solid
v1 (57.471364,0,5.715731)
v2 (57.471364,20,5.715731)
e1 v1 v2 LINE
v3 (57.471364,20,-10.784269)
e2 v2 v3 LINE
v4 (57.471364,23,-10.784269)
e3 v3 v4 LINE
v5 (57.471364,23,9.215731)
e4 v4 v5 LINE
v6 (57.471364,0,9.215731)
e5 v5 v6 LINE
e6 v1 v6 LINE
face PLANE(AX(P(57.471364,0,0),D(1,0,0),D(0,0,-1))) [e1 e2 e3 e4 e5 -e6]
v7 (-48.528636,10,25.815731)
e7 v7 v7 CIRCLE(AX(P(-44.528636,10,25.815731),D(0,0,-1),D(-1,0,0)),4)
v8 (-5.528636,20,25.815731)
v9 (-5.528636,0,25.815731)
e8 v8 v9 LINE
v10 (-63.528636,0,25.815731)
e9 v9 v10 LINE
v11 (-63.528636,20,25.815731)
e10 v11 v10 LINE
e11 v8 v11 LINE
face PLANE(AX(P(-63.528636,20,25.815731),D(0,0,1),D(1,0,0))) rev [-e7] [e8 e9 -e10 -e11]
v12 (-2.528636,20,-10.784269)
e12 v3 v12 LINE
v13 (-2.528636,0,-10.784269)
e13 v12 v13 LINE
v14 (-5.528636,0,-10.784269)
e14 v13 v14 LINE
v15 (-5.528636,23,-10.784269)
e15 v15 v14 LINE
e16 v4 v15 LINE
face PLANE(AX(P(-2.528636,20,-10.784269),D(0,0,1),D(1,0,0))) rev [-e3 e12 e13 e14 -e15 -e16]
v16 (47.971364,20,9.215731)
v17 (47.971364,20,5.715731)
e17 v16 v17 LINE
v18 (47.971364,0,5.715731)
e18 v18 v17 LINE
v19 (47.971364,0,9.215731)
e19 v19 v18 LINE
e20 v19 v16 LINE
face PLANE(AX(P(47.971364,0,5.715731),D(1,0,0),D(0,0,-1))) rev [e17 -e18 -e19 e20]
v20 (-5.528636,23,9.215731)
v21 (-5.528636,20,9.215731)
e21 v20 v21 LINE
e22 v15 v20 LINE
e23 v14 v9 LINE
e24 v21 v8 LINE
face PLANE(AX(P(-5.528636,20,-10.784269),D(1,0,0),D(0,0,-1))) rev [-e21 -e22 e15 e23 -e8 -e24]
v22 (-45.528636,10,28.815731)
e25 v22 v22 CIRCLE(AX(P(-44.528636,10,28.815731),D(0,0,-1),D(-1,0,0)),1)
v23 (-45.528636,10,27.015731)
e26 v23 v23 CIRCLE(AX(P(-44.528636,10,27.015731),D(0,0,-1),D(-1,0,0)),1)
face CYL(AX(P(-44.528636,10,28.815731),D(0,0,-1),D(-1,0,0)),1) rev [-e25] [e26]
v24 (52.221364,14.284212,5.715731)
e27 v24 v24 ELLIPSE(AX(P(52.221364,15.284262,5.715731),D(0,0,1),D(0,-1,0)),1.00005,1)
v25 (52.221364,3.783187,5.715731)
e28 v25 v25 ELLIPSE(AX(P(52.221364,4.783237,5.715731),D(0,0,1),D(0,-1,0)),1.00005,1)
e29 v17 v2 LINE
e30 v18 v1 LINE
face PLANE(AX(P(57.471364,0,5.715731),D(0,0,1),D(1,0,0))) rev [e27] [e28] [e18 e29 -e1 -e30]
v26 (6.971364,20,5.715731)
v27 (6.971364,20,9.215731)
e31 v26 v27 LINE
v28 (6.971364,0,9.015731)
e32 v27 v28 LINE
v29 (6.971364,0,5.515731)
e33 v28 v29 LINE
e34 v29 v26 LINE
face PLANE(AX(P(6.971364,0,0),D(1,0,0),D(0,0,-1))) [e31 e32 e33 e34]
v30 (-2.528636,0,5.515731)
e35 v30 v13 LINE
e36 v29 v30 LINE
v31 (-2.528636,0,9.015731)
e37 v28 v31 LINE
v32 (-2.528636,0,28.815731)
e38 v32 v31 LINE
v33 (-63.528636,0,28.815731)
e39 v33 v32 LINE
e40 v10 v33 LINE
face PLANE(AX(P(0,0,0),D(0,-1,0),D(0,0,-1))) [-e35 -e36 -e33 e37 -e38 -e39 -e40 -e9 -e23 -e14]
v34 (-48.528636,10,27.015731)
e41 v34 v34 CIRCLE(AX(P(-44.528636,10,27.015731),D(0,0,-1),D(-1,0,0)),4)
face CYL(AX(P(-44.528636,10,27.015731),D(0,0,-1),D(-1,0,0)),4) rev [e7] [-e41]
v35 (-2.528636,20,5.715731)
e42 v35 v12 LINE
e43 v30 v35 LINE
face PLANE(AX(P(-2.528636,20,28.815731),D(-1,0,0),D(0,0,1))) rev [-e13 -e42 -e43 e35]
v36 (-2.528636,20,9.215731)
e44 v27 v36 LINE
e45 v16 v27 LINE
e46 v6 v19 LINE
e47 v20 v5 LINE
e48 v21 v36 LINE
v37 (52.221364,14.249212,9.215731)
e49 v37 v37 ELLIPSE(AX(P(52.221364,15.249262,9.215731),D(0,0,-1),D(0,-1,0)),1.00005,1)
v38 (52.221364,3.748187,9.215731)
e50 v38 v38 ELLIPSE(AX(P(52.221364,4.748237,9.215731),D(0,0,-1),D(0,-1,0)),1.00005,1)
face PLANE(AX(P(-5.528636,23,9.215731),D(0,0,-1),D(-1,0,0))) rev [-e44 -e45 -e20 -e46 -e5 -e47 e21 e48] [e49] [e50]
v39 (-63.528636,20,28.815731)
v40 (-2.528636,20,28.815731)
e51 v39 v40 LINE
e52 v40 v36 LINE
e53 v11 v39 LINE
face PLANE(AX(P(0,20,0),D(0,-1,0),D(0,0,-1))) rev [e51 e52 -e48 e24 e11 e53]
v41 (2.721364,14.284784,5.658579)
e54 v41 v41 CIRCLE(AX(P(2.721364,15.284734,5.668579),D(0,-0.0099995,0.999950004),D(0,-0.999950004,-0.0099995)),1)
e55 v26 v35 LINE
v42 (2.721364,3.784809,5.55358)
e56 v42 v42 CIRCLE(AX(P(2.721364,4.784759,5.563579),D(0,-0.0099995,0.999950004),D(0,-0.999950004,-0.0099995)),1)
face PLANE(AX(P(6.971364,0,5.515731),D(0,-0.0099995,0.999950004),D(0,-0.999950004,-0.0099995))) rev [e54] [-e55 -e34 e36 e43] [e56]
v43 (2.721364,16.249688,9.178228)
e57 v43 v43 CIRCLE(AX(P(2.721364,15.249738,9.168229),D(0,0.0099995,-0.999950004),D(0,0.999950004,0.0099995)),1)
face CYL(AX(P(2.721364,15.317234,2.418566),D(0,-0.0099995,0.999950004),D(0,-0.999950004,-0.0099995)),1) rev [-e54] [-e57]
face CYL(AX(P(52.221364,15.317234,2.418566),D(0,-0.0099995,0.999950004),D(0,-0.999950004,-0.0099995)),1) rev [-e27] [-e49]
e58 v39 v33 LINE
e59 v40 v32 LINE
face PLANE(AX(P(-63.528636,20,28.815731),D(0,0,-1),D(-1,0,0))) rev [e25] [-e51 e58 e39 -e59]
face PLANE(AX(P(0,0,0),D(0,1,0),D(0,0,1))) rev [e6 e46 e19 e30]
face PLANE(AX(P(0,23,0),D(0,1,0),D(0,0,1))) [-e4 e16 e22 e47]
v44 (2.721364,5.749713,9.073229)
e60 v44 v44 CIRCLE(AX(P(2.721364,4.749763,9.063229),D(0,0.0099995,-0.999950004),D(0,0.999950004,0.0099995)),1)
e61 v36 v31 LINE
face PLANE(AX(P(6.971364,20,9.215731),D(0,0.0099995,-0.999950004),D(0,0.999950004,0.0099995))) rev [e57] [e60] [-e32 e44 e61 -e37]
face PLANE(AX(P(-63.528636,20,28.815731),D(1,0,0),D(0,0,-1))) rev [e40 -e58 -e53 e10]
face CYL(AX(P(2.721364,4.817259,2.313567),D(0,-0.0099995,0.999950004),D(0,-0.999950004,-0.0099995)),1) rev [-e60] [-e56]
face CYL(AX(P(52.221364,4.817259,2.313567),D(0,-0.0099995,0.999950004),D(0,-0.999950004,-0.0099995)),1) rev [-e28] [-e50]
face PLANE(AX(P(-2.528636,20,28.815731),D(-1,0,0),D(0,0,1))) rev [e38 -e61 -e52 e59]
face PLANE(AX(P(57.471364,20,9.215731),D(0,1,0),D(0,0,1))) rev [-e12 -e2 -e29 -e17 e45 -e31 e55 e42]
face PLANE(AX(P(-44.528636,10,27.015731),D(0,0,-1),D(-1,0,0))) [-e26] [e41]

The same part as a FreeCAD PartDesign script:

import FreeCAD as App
import Part
import Sketcher

V = App.Vector
Q = App.Units.Quantity


def add_polygon(sketch, points):
    """Adds a closed chain of lines whose ends are joined by coincident constraints."""
    first, n = sketch.GeometryCount, len(points)
    for a, b in zip(points, points[1:] + points[:1]):
        sketch.addGeometry(Part.LineSegment(App.Vector(*a, 0), App.Vector(*b, 0)), False)
    for i in range(n):
        sketch.addConstraint(Sketcher.Constraint("Coincident", first + i, 2, first + (i + 1) % n, 1))

doc = App.newDocument("Part")
body = doc.addObject("PartDesign::Body", "Body")

# Sketch on XZ plane
sketch1 = body.newObject("Sketcher::SketchObject", "Sketch")
sketch1.AttachmentSupport = (doc.getObject("XZ_Plane"), [""])
sketch1.MapMode = "FlatFace"
add_polygon(sketch1, [(-63.5, 28.8), (-2.5, 28.8), (-2.5, -10.8), (-5.5, -10.8), (-5.5, 25.8), (-63.5, 25.8)])  # lines 0-5
sketch1.addConstraint([
    Sketcher.Constraint("Horizontal", 0),
    Sketcher.Constraint("Vertical", 1),
    Sketcher.Constraint("Horizontal", 2),
    Sketcher.Constraint("Vertical", 3),
    Sketcher.Constraint("Horizontal", 4),
    Sketcher.Constraint("Vertical", 5),
    Sketcher.Constraint("Equal", 2, 5),
    Sketcher.Constraint("DistanceX", 0, 1, 0, 2, Q("61 mm")),
    Sketcher.Constraint("DistanceX", 2, 2, 2, 1, Q("3 mm")),
    Sketcher.Constraint("DistanceY", 1, 2, 1, 1, Q("39.6 mm")),
    Sketcher.Constraint("DistanceY", -1, 1, 0, 2, Q("28.815731 mm")),
    Sketcher.Constraint("DistanceX", 0, 2, -1, 1, Q("2.528636 mm")),
])
pad1 = body.newObject("PartDesign::Pad", "Pad")
pad1.Profile = sketch1
pad1.Length = 20
pad1.Reversed = True

# Sketch on XZ plane
sketch2 = body.newObject("Sketcher::SketchObject", "Sketch001")
sketch2.AttachmentSupport = (doc.getObject("XZ_Plane"), [""])
sketch2.MapMode = "FlatFace"
sketch2.AttachmentOffset = App.Placement(V(0, 0, -20), App.Rotation())
add_polygon(sketch2, [(-5.5, -10.8), (-5.5, 9.2), (-2.5, 9.2), (-2.5, -10.8)])  # lines 0-3
sketch2.addConstraint([
    Sketcher.Constraint("Vertical", 0),
    Sketcher.Constraint("Horizontal", 1),
    Sketcher.Constraint("Vertical", 2),
    Sketcher.Constraint("Horizontal", 3),
    Sketcher.Constraint("DistanceX", 1, 1, 1, 2, Q("3 mm")),
    Sketcher.Constraint("DistanceY", 0, 1, 0, 2, Q("20 mm")),
    Sketcher.Constraint("DistanceY", -1, 1, 0, 2, Q("9.215731 mm")),
    Sketcher.Constraint("DistanceX", 0, 2, -1, 1, Q("5.528636 mm")),
])
pad2 = body.newObject("PartDesign::Pad", "Pad001")
pad2.Profile = sketch2
pad2.Length = 3
pad2.Reversed = True

# Sketch on YZ plane
sketch3 = body.newObject("Sketcher::SketchObject", "Sketch002")
sketch3.AttachmentSupport = (doc.getObject("YZ_Plane"), [""])
sketch3.MapMode = "FlatFace"
sketch3.AttachmentOffset = App.Placement(V(0, 0, -2.528636), App.Rotation())
add_polygon(sketch3, [(23, 9.2), (20, 9.2), (20, -10.8), (23, -10.8)])  # lines 0-3
sketch3.addConstraint([
    Sketcher.Constraint("Horizontal", 0),
    Sketcher.Constraint("Vertical", 1),
    Sketcher.Constraint("Horizontal", 2),
    Sketcher.Constraint("Vertical", 3),
    Sketcher.Constraint("DistanceX", 0, 2, 0, 1, Q("3 mm")),
    Sketcher.Constraint("DistanceY", 1, 2, 1, 1, Q("20 mm")),
    Sketcher.Constraint("DistanceX", -1, 1, 0, 2, Q("20 mm")),
    Sketcher.Constraint("DistanceY", -1, 1, 0, 2, Q("9.215731 mm")),
])
pad3 = body.newObject("PartDesign::Pad", "Pad002")
pad3.Profile = sketch3
pad3.Length = 60

# Sketch on YZ plane
sketch4 = body.newObject("Sketcher::SketchObject", "Sketch003")
sketch4.AttachmentSupport = (doc.getObject("YZ_Plane"), [""])
sketch4.MapMode = "FlatFace"
sketch4.AttachmentOffset = App.Placement(V(0, 0, -2.528636), App.Rotation())
add_polygon(sketch4, [(20, 9.2), (0, 9), (0, 5.5), (20, 5.7)])  # lines 0-3
sketch4.addConstraint([
    Sketcher.Constraint("Vertical", 1),
    Sketcher.Constraint("Vertical", 3),
    Sketcher.Constraint("PointOnObject", 0, 2, -2),
    Sketcher.Constraint("Parallel", 0, 2),
    Sketcher.Constraint("DistanceY", 1, 2, 1, 1, Q("3.5 mm")),
    Sketcher.Constraint("DistanceX", -1, 1, 2, 2, Q("20 mm")),
    Sketcher.Constraint("DistanceY", 1, 2, 2, 2, Q("0.2 mm")),
    Sketcher.Constraint("DistanceY", -1, 1, 0, 2, Q("9.015731 mm")),
])
pad4 = body.newObject("PartDesign::Pad", "Pad003")
pad4.Profile = sketch4
pad4.Length = 9.5

# Sketch on XZ plane
sketch5 = body.newObject("Sketcher::SketchObject", "Sketch004")
sketch5.AttachmentSupport = (doc.getObject("XZ_Plane"), [""])
sketch5.MapMode = "FlatFace"
sketch5.AttachmentOffset = App.Placement(V(0, 0, -20), App.Rotation())
add_polygon(sketch5, [(48, 9.2), (48, 5.7), (57.5, 5.7), (57.5, 9.2)])  # lines 0-3
sketch5.addConstraint([
    Sketcher.Constraint("Vertical", 0),
    Sketcher.Constraint("Horizontal", 1),
    Sketcher.Constraint("Vertical", 2),
    Sketcher.Constraint("Horizontal", 3),
    Sketcher.Constraint("DistanceX", 1, 1, 1, 2, Q("9.5 mm")),
    Sketcher.Constraint("DistanceY", 0, 2, 0, 1, Q("3.5 mm")),
    Sketcher.Constraint("DistanceY", -1, 1, 0, 2, Q("5.715731 mm")),
    Sketcher.Constraint("DistanceX", -1, 1, 0, 2, Q("47.971364 mm")),
])
pad5 = body.newObject("PartDesign::Pad", "Pad004")
pad5.Profile = sketch5
pad5.Length = 20

# Sketch on XY plane
sketch6 = body.newObject("Sketcher::SketchObject", "Sketch005")
sketch6.AttachmentSupport = (doc.getObject("XY_Plane"), [""])
sketch6.MapMode = "FlatFace"
sketch6.AttachmentOffset = App.Placement(V(0, 0, 25.815731), App.Rotation())
sketch6.addGeometry(Part.Circle(V(-44.5, 10, 0), V(0, 0, 1), 4), False)
sketch6.addConstraint([
    Sketcher.Constraint("Diameter", 0, Q("8 mm")),
    Sketcher.Constraint("DistanceY", -1, 1, 0, 3, Q("10 mm")),
    Sketcher.Constraint("DistanceX", 0, 3, -1, 1, Q("44.528636 mm")),
])
pocket1 = body.newObject("PartDesign::Pocket", "Pocket")
pocket1.Profile = sketch6
pocket1.Length = 1.2
pocket1.Reversed = True

# Sketch on XY plane
sketch7 = body.newObject("Sketcher::SketchObject", "Sketch006")
sketch7.AttachmentSupport = (doc.getObject("XY_Plane"), [""])
sketch7.MapMode = "FlatFace"
sketch7.AttachmentOffset = App.Placement(V(0, 0, 27.015731), App.Rotation())
sketch7.addGeometry(Part.Circle(V(-44.5, 10, 0), V(0, 0, 1), 1), False)
sketch7.addConstraint([
    Sketcher.Constraint("Diameter", 0, Q("2 mm")),
    Sketcher.Constraint("DistanceY", -1, 1, 0, 3, Q("10 mm")),
    Sketcher.Constraint("DistanceX", 0, 3, -1, 1, Q("44.528636 mm")),
])
pocket2 = body.newObject("PartDesign::Pocket", "Pocket001")
pocket2.Profile = sketch7
pocket2.Length = 1.8
pocket2.Reversed = True

# Sketch on an angled plane
sketch8 = body.newObject("Sketcher::SketchObject", "Sketch007")
sketch8.Placement = App.Placement(V(0, -0.090148, 9.01483), App.Rotation(V(1, 0, 0), V(0, 0.999950004, 0.0099995), V(0, -0.0099995, 0.999950004), "ZXY"))
sketch8.addGeometry([
    Part.Circle(V(2.7, 15.3, 0), V(0, 0, 1), 1),
    Part.Circle(V(2.7, 4.8, 0), V(0, 0, 1), 1),
    Part.Circle(V(52.2, 15.3, 0), V(0, 0, 1), 1),
    Part.Circle(V(52.2, 4.8, 0), V(0, 0, 1), 1),
], False)
sketch8.addConstraint([
    Sketcher.Constraint("Equal", 0, 1),
    Sketcher.Constraint("Equal", 1, 2),
    Sketcher.Constraint("Equal", 2, 3),
    Sketcher.Constraint("Horizontal", 0, 3, 2, 3),
    Sketcher.Constraint("Horizontal", 1, 3, 3, 3),
    Sketcher.Constraint("Vertical", 0, 3, 1, 3),
    Sketcher.Constraint("Vertical", 2, 3, 3, 3),
    Sketcher.Constraint("Diameter", 0, Q("2 mm")),
    Sketcher.Constraint("DistanceX", 0, 3, 2, 3, Q("49.5 mm")),
    Sketcher.Constraint("DistanceY", 1, 3, 0, 3, Q("10.5005 mm")),
    Sketcher.Constraint("DistanceX", -1, 1, 0, 3, Q("2.721364 mm")),
    Sketcher.Constraint("DistanceY", -1, 1, 0, 3, Q("15.340653 mm")),
])
pocket3 = body.newObject("PartDesign::Pocket", "Pocket002")
pocket3.Profile = sketch8
pocket3.Length = 13.5
pocket3.Midplane = True

doc.recompute()
